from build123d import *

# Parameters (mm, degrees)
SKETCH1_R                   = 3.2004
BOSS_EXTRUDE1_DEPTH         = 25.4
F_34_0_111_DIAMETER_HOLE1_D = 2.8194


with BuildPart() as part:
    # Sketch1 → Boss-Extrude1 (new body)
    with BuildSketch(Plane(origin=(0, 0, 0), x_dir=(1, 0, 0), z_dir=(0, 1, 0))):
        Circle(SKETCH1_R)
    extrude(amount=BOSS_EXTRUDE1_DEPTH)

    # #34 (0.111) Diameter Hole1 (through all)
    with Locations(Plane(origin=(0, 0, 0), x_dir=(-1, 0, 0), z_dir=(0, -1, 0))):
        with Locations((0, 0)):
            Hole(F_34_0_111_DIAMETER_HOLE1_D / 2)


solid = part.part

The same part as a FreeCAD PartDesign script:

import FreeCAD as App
import Part
import Sketcher
Q = App.Units.Quantity

doc = App.newDocument("Part")
body = doc.addObject("PartDesign::Body", "Body")

# Sketch on XZ plane
sketch1 = doc.addObject("Sketcher::SketchObject", "Sketch")
body.addObject(sketch1)
sketch1.AttachmentSupport = (doc.XZ_Plane, [""])
sketch1.MapMode = "FlatFace"
sketch1.addGeometry(Part.Circle(App.Vector(0, 0, 0), App.Vector(0, 0, 1), 3.2), False)
sketch1.addConstraint([
    Sketcher.Constraint("Coincident", 0, 3, -1, 1),
    Sketcher.Constraint("Diameter", 0, Q("0.252 in")),
])
pad1 = doc.addObject("PartDesign::Pad", "Pad")
body.addObject(pad1)
pad1.Profile = sketch1
pad1.Length = Q("1 in")
pad1.Reversed = True

# Sketch on XZ plane
sketch2 = doc.addObject("Sketcher::SketchObject", "Sketch001")
body.addObject(sketch2)
sketch2.AttachmentSupport = (doc.XZ_Plane, [""])
sketch2.MapMode = "FlatFace"
sketch2.addGeometry(Part.Circle(App.Vector(0, 0, 0), App.Vector(0, 0, 1), 1.4), False)
sketch2.addConstraint([
    Sketcher.Constraint("Coincident", 0, 3, -1, 1),
    Sketcher.Constraint("Diameter", 0, Q("0.111 in")),
])
doc.recompute()
hole = doc.addObject("PartDesign::Hole", "Hole")
body.addObject(hole)
hole.Profile = sketch2
hole.ThreadType = "None"
hole.Diameter = Q("0.111 in")
hole.DepthType = "ThroughAll"

doc.recompute()
